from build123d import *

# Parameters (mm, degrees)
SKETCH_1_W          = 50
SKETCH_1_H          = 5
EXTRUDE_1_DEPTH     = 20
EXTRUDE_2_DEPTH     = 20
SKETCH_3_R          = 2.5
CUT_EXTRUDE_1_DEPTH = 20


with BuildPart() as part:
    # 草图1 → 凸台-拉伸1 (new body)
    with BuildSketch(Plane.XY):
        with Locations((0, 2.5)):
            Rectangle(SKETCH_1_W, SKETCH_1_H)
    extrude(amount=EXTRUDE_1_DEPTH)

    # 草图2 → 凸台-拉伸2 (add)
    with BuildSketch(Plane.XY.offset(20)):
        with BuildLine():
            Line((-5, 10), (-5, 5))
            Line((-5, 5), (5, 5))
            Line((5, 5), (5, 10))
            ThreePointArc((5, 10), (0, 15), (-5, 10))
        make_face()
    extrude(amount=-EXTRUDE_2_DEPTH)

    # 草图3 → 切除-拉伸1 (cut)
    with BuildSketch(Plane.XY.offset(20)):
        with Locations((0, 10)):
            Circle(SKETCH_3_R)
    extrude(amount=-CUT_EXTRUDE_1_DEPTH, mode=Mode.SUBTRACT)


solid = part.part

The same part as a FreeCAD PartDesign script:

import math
import FreeCAD as App
import Part
import Sketcher

doc = App.newDocument("Part")
params = doc.addObject("Spreadsheet::Sheet", "Params")
for row, (alias, value) in enumerate([
    ("sketch1_width", "50 mm"),
    ("sketch1_height", "5 mm"),
    ("pad1_length", "20 mm"),
    ("sketch2_radius", "5 mm"),
    ("sketch2_height", "5 mm"),
    ("pad2_length", "20 mm"),
    ("sketch3_diameter", "5 mm"),
    ("pocket1_length", "20 mm"),
], start=1):
    params.set(f"A{row}", alias)
    params.set(f"B{row}", "=" + value)
    params.setAlias(f"B{row}", alias)

body = doc.addObject("PartDesign::Body", "Body")

# Sketch on XY plane
sketch1 = body.newObject("Sketcher::SketchObject", "Sketch")
sketch1.AttachmentSupport = (doc.getObject("XY_Plane"), [""])
sketch1.MapMode = "FlatFace"
sketch1.addGeometry([
    Part.LineSegment(App.Vector(-25, 5, 0), App.Vector(-25, 0, 0)),
    Part.LineSegment(App.Vector(-25, 0, 0), App.Vector(25, 0, 0)),
    Part.LineSegment(App.Vector(25, 0, 0), App.Vector(25, 5, 0)),
    Part.LineSegment(App.Vector(25, 5, 0), App.Vector(-25, 5, 0)),
], False)
sketch1.addConstraint([
    Sketcher.Constraint("Coincident", 0, 2, 1, 1),
    Sketcher.Constraint("Coincident", 1, 2, 2, 1),
    Sketcher.Constraint("Coincident", 2, 2, 3, 1),
    Sketcher.Constraint("Coincident", 3, 2, 0, 1),
    Sketcher.Constraint("Vertical", 0),
    Sketcher.Constraint("Horizontal", 1),
    Sketcher.Constraint("Vertical", 2),
    Sketcher.Constraint("Horizontal", 3),
    Sketcher.Constraint("Symmetric", 0, 2, 1, 2, -1, 1),
    Sketcher.Constraint("DistanceX", 1, 1, 1, 2, 50.0),
    Sketcher.Constraint("DistanceY", 0, 2, 0, 1, 5.0),
])
sketch1.setExpression("Constraints[9]", "Params.sketch1_width")
sketch1.setExpression("Constraints[10]", "Params.sketch1_height")
pad1 = body.newObject("PartDesign::Pad", "Pad")
pad1.Profile = sketch1
pad1.setExpression("Length", "Params.pad1_length")

# Sketch on XY plane
sketch2 = body.newObject("Sketcher::SketchObject", "Sketch001")
sketch2.AttachmentSupport = (doc.getObject("XY_Plane"), [""])
sketch2.MapMode = "FlatFace"
sketch2.AttachmentOffset = App.Placement(App.Vector(0, 0, 20), App.Rotation())
sketch2.addGeometry([
    Part.LineSegment(App.Vector(-5, 10, 0), App.Vector(-5, 5, 0)),
    Part.LineSegment(App.Vector(-5, 5, 0), App.Vector(5, 5, 0)),
    Part.LineSegment(App.Vector(5, 5, 0), App.Vector(5, 10, 0)),
    Part.ArcOfCircle(Part.Circle(App.Vector(0, 10, 0), App.Vector(0, 0, 1), 5), math.radians(0), math.radians(180)),
], False)
sketch2.addConstraint([
    Sketcher.Constraint("Coincident", 0, 2, 1, 1),
    Sketcher.Constraint("Coincident", 1, 2, 2, 1),
    Sketcher.Constraint("Tangent", 2, 2, 3, 1),
    Sketcher.Constraint("Tangent", 3, 2, 0, 1),
    Sketcher.Constraint("Vertical", 0),
    Sketcher.Constraint("Horizontal", 1),
    Sketcher.Constraint("Vertical", 2),
    Sketcher.Constraint("PointOnObject", 3, 3, -2),
    Sketcher.Constraint("Radius", 3, 5.0),
    Sketcher.Constraint("DistanceY", 0, 2, 0, 1, 5.0),
    Sketcher.Constraint("DistanceY", -1, 1, 3, 3, 10.0),
])
sketch2.setExpression("Constraints[8]", "Params.sketch2_radius")
sketch2.setExpression("Constraints[9]", "Params.sketch2_height")
pad2 = body.newObject("PartDesign::Pad", "Pad001")
pad2.Profile = sketch2
pad2.setExpression("Length", "Params.pad2_length")
pad2.Reversed = True

# Sketch on XY plane
sketch3 = body.newObject("Sketcher::SketchObject", "Sketch002")
sketch3.AttachmentSupport = (doc.getObject("XY_Plane"), [""])
sketch3.MapMode = "FlatFace"
sketch3.AttachmentOffset = App.Placement(App.Vector(0, 0, 20), App.Rotation())
sketch3.addGeometry(Part.Circle(App.Vector(0, 10, 0), App.Vector(0, 0, 1), 2.5), False)
sketch3.addConstraint([
    Sketcher.Constraint("PointOnObject", 0, 3, -2),
    Sketcher.Constraint("Diameter", 0, 5.0),
    Sketcher.Constraint("DistanceY", -1, 1, 0, 3, 10.0),
])
sketch3.setExpression("Constraints[1]", "Params.sketch3_diameter")
pocket1 = body.newObject("PartDesign::Pocket", "Pocket")
pocket1.Profile = sketch3
pocket1.setExpression("Length", "Params.pocket1_length")

doc.recompute()
